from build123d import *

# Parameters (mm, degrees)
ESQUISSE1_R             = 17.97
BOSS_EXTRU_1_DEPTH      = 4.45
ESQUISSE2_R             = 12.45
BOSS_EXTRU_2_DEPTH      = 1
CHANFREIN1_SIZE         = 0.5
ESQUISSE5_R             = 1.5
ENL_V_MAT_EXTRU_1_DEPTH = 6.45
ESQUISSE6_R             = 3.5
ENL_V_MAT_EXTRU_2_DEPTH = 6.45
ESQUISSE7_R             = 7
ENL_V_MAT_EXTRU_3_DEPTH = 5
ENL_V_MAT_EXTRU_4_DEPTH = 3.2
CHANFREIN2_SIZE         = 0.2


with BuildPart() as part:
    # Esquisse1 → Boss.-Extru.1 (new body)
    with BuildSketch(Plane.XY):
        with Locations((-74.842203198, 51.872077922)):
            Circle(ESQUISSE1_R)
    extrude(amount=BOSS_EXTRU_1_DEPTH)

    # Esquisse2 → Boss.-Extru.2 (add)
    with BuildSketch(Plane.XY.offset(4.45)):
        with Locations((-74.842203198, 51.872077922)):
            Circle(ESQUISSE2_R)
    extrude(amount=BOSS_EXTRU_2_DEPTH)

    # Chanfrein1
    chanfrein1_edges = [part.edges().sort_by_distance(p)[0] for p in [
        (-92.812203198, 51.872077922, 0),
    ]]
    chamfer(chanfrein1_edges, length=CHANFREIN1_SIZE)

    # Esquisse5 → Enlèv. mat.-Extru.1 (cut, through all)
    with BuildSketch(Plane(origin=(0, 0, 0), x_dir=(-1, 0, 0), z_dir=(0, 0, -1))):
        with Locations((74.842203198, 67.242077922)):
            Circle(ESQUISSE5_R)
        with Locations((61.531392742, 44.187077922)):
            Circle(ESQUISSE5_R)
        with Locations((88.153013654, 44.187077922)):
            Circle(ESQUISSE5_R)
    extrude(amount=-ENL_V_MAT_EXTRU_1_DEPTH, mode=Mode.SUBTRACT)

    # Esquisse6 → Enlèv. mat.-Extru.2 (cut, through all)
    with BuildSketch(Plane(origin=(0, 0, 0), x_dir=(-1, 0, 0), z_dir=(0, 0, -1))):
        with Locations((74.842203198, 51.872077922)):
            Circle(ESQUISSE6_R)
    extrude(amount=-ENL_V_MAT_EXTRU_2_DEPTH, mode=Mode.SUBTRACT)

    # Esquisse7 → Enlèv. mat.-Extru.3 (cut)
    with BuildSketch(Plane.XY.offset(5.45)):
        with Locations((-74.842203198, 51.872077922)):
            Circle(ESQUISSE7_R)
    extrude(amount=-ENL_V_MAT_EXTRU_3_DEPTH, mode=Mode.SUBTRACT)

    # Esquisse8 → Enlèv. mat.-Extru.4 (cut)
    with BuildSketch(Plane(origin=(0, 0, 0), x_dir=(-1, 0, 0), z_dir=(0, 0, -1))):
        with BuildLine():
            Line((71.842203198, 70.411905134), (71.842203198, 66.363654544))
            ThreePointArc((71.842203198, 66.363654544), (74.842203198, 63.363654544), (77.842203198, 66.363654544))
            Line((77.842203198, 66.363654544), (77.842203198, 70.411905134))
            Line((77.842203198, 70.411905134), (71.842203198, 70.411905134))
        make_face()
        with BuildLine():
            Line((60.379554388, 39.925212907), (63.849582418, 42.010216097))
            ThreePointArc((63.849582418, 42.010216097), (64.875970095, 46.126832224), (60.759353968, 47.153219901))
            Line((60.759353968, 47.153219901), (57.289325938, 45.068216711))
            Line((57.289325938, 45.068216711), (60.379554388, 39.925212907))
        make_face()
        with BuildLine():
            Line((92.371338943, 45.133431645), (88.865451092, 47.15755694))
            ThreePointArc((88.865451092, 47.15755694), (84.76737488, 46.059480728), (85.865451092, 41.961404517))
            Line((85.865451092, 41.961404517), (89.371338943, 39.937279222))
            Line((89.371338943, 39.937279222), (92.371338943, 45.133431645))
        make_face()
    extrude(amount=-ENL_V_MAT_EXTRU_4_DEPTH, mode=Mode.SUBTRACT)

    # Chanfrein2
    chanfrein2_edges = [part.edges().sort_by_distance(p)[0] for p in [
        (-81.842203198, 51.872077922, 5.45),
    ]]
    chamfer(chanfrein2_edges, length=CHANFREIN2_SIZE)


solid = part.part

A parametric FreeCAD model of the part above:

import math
import FreeCAD as App
import Part
import Sketcher
Q = App.Units.Quantity


def edges_at(feature, points):
    """Names of the edges that pass closest to the given points."""
    edges = feature.Shape.Edges
    near = lambda p: min(range(len(edges)), key=lambda i: edges[i].distToShape(Part.Vertex(*p))[0])
    return sorted({f"Edge{near(p) + 1}" for p in points})

doc = App.newDocument("Part")
body = doc.addObject("PartDesign::Body", "Body")

sketch1 = body.newObject("Sketcher::SketchObject", "Sketch")
sketch1.AttachmentSupport = (doc.getObject("XY_Plane"), [""])
sketch1.MapMode = "FlatFace"
sketch1.addGeometry(Part.Circle(App.Vector(-75, 52, 0), App.Vector(0, 0, 1), 18), False)
sketch1.addConstraint(Sketcher.Constraint("Diameter", 0, Q("35.94 mm")))
sketch1.addConstraint(Sketcher.Constraint("DistanceX", 0, 3, -1, 1, Q("74.842203 mm")))
sketch1.addConstraint(Sketcher.Constraint("DistanceY", -1, 1, 0, 3, Q("51.872078 mm")))
pad1 = body.newObject("PartDesign::Pad", "Pad")
pad1.Profile = sketch1
pad1.Length = 4.45

sketch2 = body.newObject("Sketcher::SketchObject", "Sketch001")
sketch2.AttachmentSupport = (doc.getObject("XY_Plane"), [""])
sketch2.MapMode = "FlatFace"
sketch2.AttachmentOffset = App.Placement(App.Vector(0, 0, 4.45), App.Rotation())
sketch2.addGeometry(Part.Circle(App.Vector(-75, 52, 0), App.Vector(0, 0, 1), 12), False)
sketch2.addConstraint(Sketcher.Constraint("Diameter", 0, Q("24.9 mm")))
sketch2.addConstraint(Sketcher.Constraint("DistanceX", 0, 3, -1, 1, Q("74.842203 mm")))
sketch2.addConstraint(Sketcher.Constraint("DistanceY", -1, 1, 0, 3, Q("51.872078 mm")))
pad2 = body.newObject("PartDesign::Pad", "Pad001")
pad2.Profile = sketch2
pad2.Length = 1
doc.recompute()

chamfer = body.newObject("PartDesign::Chamfer", "Chamfer")
chamfer.Base = (pad2, edges_at(pad2, [(-92.812, 51.872, 0)]))
chamfer.Size = 0.5

sketch3 = body.newObject("Sketcher::SketchObject", "Sketch002")
sketch3.AttachmentSupport = (doc.getObject("XY_Plane"), [""])
sketch3.MapMode = "FlatFace"
sketch3.addGeometry(Part.Circle(App.Vector(-74.8, 67.2, 0), App.Vector(0, 0, 1), 1.5), False)
sketch3.addGeometry(Part.Circle(App.Vector(-61.5, 44.2, 0), App.Vector(0, 0, 1), 1.5), False)
sketch3.addGeometry(Part.Circle(App.Vector(-88.2, 44.2, 0), App.Vector(0, 0, 1), 1.5), False)
sketch3.addConstraint(Sketcher.Constraint("Equal", 0, 1))
sketch3.addConstraint(Sketcher.Constraint("Equal", 1, 2))
sketch3.addConstraint(Sketcher.Constraint("Horizontal", 1, 3, 2, 3))
sketch3.addConstraint(Sketcher.Constraint("Diameter", 0, Q("3 mm")))
sketch3.addConstraint(Sketcher.Constraint("DistanceY", 1, 3, 0, 3, Q("23.055 mm")))
sketch3.addConstraint(Sketcher.Constraint("DistanceX", 0, 3, 1, 3, Q("13.31081 mm")))
sketch3.addConstraint(Sketcher.Constraint("DistanceX", 2, 3, 1, 3, Q("26.621621 mm")))
sketch3.addConstraint(Sketcher.Constraint("DistanceX", 0, 3, -1, 1, Q("74.842203 mm")))
sketch3.addConstraint(Sketcher.Constraint("DistanceY", -1, 1, 0, 3, Q("67.242078 mm")))
pocket1 = body.newObject("PartDesign::Pocket", "Pocket")
pocket1.Profile = sketch3
pocket1.Type = "ThroughAll"
pocket1.Reversed = True

sketch4 = body.newObject("Sketcher::SketchObject", "Sketch003")
sketch4.AttachmentSupport = (doc.getObject("XY_Plane"), [""])
sketch4.MapMode = "FlatFace"
sketch4.addGeometry(Part.Circle(App.Vector(-74.8, 51.9, 0), App.Vector(0, 0, 1), 3.5), False)
sketch4.addConstraint(Sketcher.Constraint("Diameter", 0, Q("7 mm")))
sketch4.addConstraint(Sketcher.Constraint("DistanceX", 0, 3, -1, 1, Q("74.842203 mm")))
sketch4.addConstraint(Sketcher.Constraint("DistanceY", -1, 1, 0, 3, Q("51.872078 mm")))
pocket2 = body.newObject("PartDesign::Pocket", "Pocket001")
pocket2.Profile = sketch4
pocket2.Type = "ThroughAll"
pocket2.Reversed = True

sketch5 = body.newObject("Sketcher::SketchObject", "Sketch004")
sketch5.AttachmentSupport = (doc.getObject("XY_Plane"), [""])
sketch5.MapMode = "FlatFace"
sketch5.AttachmentOffset = App.Placement(App.Vector(0, 0, 5.45), App.Rotation())
sketch5.addGeometry(Part.Circle(App.Vector(-75, 52, 0), App.Vector(0, 0, 1), 7), False)
sketch5.addConstraint(Sketcher.Constraint("Diameter", 0, Q("14 mm")))
sketch5.addConstraint(Sketcher.Constraint("DistanceX", 0, 3, -1, 1, Q("74.842203 mm")))
sketch5.addConstraint(Sketcher.Constraint("DistanceY", -1, 1, 0, 3, Q("51.872078 mm")))
pocket3 = body.newObject("PartDesign::Pocket", "Pocket002")
pocket3.Profile = sketch5
pocket3.Length = 5

sketch6 = body.newObject("Sketcher::SketchObject", "Sketch005")
sketch6.AttachmentSupport = (doc.getObject("XY_Plane"), [""])
sketch6.MapMode = "FlatFace"
sketch6.addGeometry(Part.LineSegment(App.Vector(-71.8, 70.4, 0), App.Vector(-71.8, 66.4, 0)), False)
sketch6.addGeometry(Part.ArcOfCircle(Part.Circle(App.Vector(-74.8, 66.4, 0), App.Vector(0, 0, 1), 3), math.radians(180), math.radians(360)), False)
sketch6.addGeometry(Part.LineSegment(App.Vector(-77.8, 66.4, 0), App.Vector(-77.8, 70.4, 0)), False)
sketch6.addGeometry(Part.LineSegment(App.Vector(-77.8, 70.4, 0), App.Vector(-71.8, 70.4, 0)), False)
sketch6.addGeometry(Part.LineSegment(App.Vector(-60.4, 39.9, 0), App.Vector(-63.8, 42, 0)), False)
sketch6.addGeometry(Part.ArcOfCircle(Part.Circle(App.Vector(-62.3, 44.6, 0), App.Vector(0, 0, 1), 3), math.radians(59), math.radians(239)), False)
sketch6.addGeometry(Part.LineSegment(App.Vector(-60.8, 47.2, 0), App.Vector(-57.3, 45.1, 0)), False)
sketch6.addGeometry(Part.LineSegment(App.Vector(-57.3, 45.1, 0), App.Vector(-60.4, 39.9, 0)), False)
sketch6.addGeometry(Part.LineSegment(App.Vector(-92.4, 45.1, 0), App.Vector(-88.9, 47.2, 0)), False)
sketch6.addGeometry(Part.ArcOfCircle(Part.Circle(App.Vector(-87.4, 44.6, 0), App.Vector(0, 0, 1), 3), math.radians(-60), math.radians(120)), False)
sketch6.addGeometry(Part.LineSegment(App.Vector(-85.9, 42, 0), App.Vector(-89.4, 39.9, 0)), False)
sketch6.addGeometry(Part.LineSegment(App.Vector(-89.4, 39.9, 0), App.Vector(-92.4, 45.1, 0)), False)
sketch6.addConstraint(Sketcher.Constraint("Tangent", 0, 2, 1, 2))
sketch6.addConstraint(Sketcher.Constraint("Tangent", 1, 1, 2, 1))
sketch6.addConstraint(Sketcher.Constraint("Coincident", 2, 2, 3, 1))
sketch6.addConstraint(Sketcher.Constraint("Coincident", 3, 2, 0, 1))
sketch6.addConstraint(Sketcher.Constraint("Tangent", 4, 2, 5, 2))
sketch6.addConstraint(Sketcher.Constraint("Tangent", 5, 1, 6, 1))
sketch6.addConstraint(Sketcher.Constraint("Coincident", 6, 2, 7, 1))
sketch6.addConstraint(Sketcher.Constraint("Coincident", 7, 2, 4, 1))
sketch6.addConstraint(Sketcher.Constraint("Tangent", 8, 2, 9, 2))
sketch6.addConstraint(Sketcher.Constraint("Tangent", 9, 1, 10, 1))
sketch6.addConstraint(Sketcher.Constraint("Coincident", 10, 2, 11, 1))
sketch6.addConstraint(Sketcher.Constraint("Coincident", 11, 2, 8, 1))
sketch6.addConstraint(Sketcher.Constraint("Vertical", 0))
sketch6.addConstraint(Sketcher.Constraint("Vertical", 2))
sketch6.addConstraint(Sketcher.Constraint("Horizontal", 3))
sketch6.addConstraint(Sketcher.Constraint("Equal", 1, 5))
sketch6.addConstraint(Sketcher.Constraint("Equal", 5, 9))
sketch6.addConstraint(Sketcher.Constraint("Parallel", 4, 6))
sketch6.addConstraint(Sketcher.Constraint("Perpendicular", 6, 7))
sketch6.addConstraint(Sketcher.Constraint("Parallel", 8, 10))
sketch6.addConstraint(Sketcher.Constraint("Perpendicular", 10, 11))
sketch6.addConstraint(Sketcher.Constraint("Equal", 6, 8))
sketch6.addConstraint(Sketcher.Constraint("Radius", 1, Q("3 mm")))
sketch6.addConstraint(Sketcher.Constraint("Angle", 4, Q("149 deg")))
sketch6.addConstraint(Sketcher.Constraint("Angle", 8, Q("30 deg")))
sketch6.addConstraint(Sketcher.Constraint("DistanceY", 4, 2, 6, 2, Q("3.058001 mm")))
sketch6.addConstraint(Sketcher.Constraint("DistanceY", 0, 2, 0, 1, Q("4.048251 mm")))
sketch6.addConstraint(Sketcher.Constraint("DistanceX", 5, 3, -1, 1, Q("62.304468 mm")))
sketch6.addConstraint(Sketcher.Constraint("DistanceX", 9, 3, -1, 1, Q("87.365451 mm")))
sketch6.addConstraint(Sketcher.Constraint("DistanceY", -1, 1, 9, 3, Q("44.559481 mm")))
sketch6.addConstraint(Sketcher.Constraint("DistanceY", -1, 1, 5, 1, Q("47.15322 mm")))
sketch6.addConstraint(Sketcher.Constraint("DistanceX", 0, 2, 4, 2, Q("7.992621 mm")))
sketch6.addConstraint(Sketcher.Constraint("DistanceY", 4, 2, 0, 2, Q("24.353438 mm")))
pocket4 = body.newObject("PartDesign::Pocket", "Pocket003")
pocket4.Profile = sketch6
pocket4.Length = 3.2
pocket4.Reversed = True
doc.recompute()

chamfer2 = body.newObject("PartDesign::Chamfer", "Chamfer001")
chamfer2.Base = (pocket4, edges_at(pocket4, [(-81.842, 51.872, 5.45)]))
chamfer2.Size = 0.2

doc.recompute()
